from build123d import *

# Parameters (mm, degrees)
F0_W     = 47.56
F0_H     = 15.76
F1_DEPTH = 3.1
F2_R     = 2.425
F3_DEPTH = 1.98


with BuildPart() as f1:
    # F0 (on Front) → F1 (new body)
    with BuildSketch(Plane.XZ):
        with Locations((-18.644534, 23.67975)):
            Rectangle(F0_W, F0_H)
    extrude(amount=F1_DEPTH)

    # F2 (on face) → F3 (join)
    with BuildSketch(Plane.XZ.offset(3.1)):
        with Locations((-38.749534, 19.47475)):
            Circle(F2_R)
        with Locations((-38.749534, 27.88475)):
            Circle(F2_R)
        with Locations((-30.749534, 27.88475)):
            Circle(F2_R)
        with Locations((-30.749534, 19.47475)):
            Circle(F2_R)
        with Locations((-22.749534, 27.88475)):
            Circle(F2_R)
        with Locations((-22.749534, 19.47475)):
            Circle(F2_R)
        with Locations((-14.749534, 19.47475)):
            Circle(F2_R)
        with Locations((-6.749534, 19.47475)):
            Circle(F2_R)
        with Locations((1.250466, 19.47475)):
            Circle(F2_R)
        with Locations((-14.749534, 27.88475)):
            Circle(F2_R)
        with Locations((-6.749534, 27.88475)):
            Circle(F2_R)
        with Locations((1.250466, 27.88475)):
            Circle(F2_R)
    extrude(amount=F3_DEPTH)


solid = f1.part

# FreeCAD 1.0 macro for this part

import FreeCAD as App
import Part
import Sketcher

V = App.Vector


def add_polygon(sketch, points):
    """Adds a closed chain of lines whose ends are joined by coincident constraints."""
    first, n = sketch.GeometryCount, len(points)
    for a, b in zip(points, points[1:] + points[:1]):
        sketch.addGeometry(Part.LineSegment(App.Vector(*a, 0), App.Vector(*b, 0)), False)
    for i in range(n):
        sketch.addConstraint(Sketcher.Constraint("Coincident", first + i, 2, first + (i + 1) % n, 1))

doc = App.newDocument("Part")
body = doc.addObject("PartDesign::Body", "Body")

# Sketch on XZ plane
sketch1 = body.newObject("Sketcher::SketchObject", "Sketch")
sketch1.AttachmentSupport = (doc.getObject("XZ_Plane"), [""])
sketch1.MapMode = "FlatFace"
add_polygon(sketch1, [(-42, 32), (-42, 16), (5, 16), (5, 32)])  # lines 0-3
sketch1.addConstraint([
    Sketcher.Constraint("Vertical", 0),
    Sketcher.Constraint("Horizontal", 1),
    Sketcher.Constraint("Vertical", 2),
    Sketcher.Constraint("Horizontal", 3),
    Sketcher.Constraint("DistanceX", 1, 1, 1, 2, 47.56),
    Sketcher.Constraint("DistanceY", 0, 2, 0, 1, 15.76),
    Sketcher.Constraint("DistanceY", -1, 1, 0, 2, 15.79975),
    Sketcher.Constraint("DistanceX", 0, 2, -1, 1, 42.424534),
])
pad1 = body.newObject("PartDesign::Pad", "Pad")
pad1.Profile = sketch1
pad1.Length = 3.1

# Sketch on XZ plane
sketch2 = body.newObject("Sketcher::SketchObject", "Sketch001")
sketch2.AttachmentSupport = (doc.getObject("XZ_Plane"), [""])
sketch2.MapMode = "FlatFace"
sketch2.AttachmentOffset = App.Placement(V(0, 0, 3.1), App.Rotation())
sketch2.addGeometry([
    Part.Circle(V(-38.7, 19.5, 0), V(0, 0, 1), 2.4),  # 0
    Part.Circle(V(-38.7, 27.9, 0), V(0, 0, 1), 2.4),  # 1
    Part.Circle(V(-30.7, 27.9, 0), V(0, 0, 1), 2.4),  # 2
    Part.Circle(V(-30.7, 19.5, 0), V(0, 0, 1), 2.4),  # 3
    Part.Circle(V(-22.7, 27.9, 0), V(0, 0, 1), 2.4),  # 4
    Part.Circle(V(-22.7, 19.5, 0), V(0, 0, 1), 2.4),  # 5
    Part.Circle(V(-14.7, 19.5, 0), V(0, 0, 1), 2.4),  # 6
    Part.Circle(V(-6.7, 19.5, 0), V(0, 0, 1), 2.4),  # 7
    Part.Circle(V(1.3, 19.5, 0), V(0, 0, 1), 2.4),  # 8
    Part.Circle(V(-14.7, 27.9, 0), V(0, 0, 1), 2.4),  # 9
    Part.Circle(V(-6.7, 27.9, 0), V(0, 0, 1), 2.4),  # 10
    Part.Circle(V(1.3, 27.9, 0), V(0, 0, 1), 2.4),  # 11
], False)
sketch2.addConstraint([
    Sketcher.Constraint("Equal", 0, 1),
    Sketcher.Constraint("Equal", 1, 2),
    Sketcher.Constraint("Equal", 2, 3),
    Sketcher.Constraint("Equal", 3, 4),
    Sketcher.Constraint("Equal", 4, 5),
    Sketcher.Constraint("Equal", 5, 6),
    Sketcher.Constraint("Equal", 6, 7),
    Sketcher.Constraint("Equal", 7, 8),
    Sketcher.Constraint("Equal", 8, 9),
    Sketcher.Constraint("Equal", 9, 10),
    Sketcher.Constraint("Equal", 10, 11),
    Sketcher.Constraint("Horizontal", 1, 3, 2, 3),
    Sketcher.Constraint("Horizontal", 0, 3, 3, 3),
    Sketcher.Constraint("Horizontal", 2, 3, 4, 3),
    Sketcher.Constraint("Horizontal", 3, 3, 5, 3),
    Sketcher.Constraint("Horizontal", 5, 3, 6, 3),
    Sketcher.Constraint("Horizontal", 6, 3, 7, 3),
    Sketcher.Constraint("Horizontal", 7, 3, 8, 3),
    Sketcher.Constraint("Horizontal", 4, 3, 9, 3),
    Sketcher.Constraint("Horizontal", 9, 3, 10, 3),
    Sketcher.Constraint("Horizontal", 10, 3, 11, 3),
    Sketcher.Constraint("Vertical", 0, 3, 1, 3),
    Sketcher.Constraint("Vertical", 2, 3, 3, 3),
    Sketcher.Constraint("Vertical", 4, 3, 5, 3),
    Sketcher.Constraint("Vertical", 6, 3, 9, 3),
    Sketcher.Constraint("Vertical", 7, 3, 10, 3),
    Sketcher.Constraint("Vertical", 8, 3, 11, 3),
    Sketcher.Constraint("Diameter", 0, 4.85),
    Sketcher.Constraint("DistanceX", 1, 3, 2, 3, 8.0),
    Sketcher.Constraint("DistanceX", 2, 3, 4, 3, 8.0),
    Sketcher.Constraint("DistanceX", 5, 3, 6, 3, 8.0),
    Sketcher.Constraint("DistanceX", 6, 3, 7, 3, 8.0),
    Sketcher.Constraint("DistanceX", 7, 3, 8, 3, 8.0),
    Sketcher.Constraint("DistanceY", 0, 3, 1, 3, 8.41),
    Sketcher.Constraint("DistanceY", -1, 1, 0, 3, 19.47475),
    Sketcher.Constraint("DistanceX", 0, 3, -1, 1, 38.749534),
])
pad2 = body.newObject("PartDesign::Pad", "Pad001")
pad2.Profile = sketch2
pad2.Length = 1.98

doc.recompute()
